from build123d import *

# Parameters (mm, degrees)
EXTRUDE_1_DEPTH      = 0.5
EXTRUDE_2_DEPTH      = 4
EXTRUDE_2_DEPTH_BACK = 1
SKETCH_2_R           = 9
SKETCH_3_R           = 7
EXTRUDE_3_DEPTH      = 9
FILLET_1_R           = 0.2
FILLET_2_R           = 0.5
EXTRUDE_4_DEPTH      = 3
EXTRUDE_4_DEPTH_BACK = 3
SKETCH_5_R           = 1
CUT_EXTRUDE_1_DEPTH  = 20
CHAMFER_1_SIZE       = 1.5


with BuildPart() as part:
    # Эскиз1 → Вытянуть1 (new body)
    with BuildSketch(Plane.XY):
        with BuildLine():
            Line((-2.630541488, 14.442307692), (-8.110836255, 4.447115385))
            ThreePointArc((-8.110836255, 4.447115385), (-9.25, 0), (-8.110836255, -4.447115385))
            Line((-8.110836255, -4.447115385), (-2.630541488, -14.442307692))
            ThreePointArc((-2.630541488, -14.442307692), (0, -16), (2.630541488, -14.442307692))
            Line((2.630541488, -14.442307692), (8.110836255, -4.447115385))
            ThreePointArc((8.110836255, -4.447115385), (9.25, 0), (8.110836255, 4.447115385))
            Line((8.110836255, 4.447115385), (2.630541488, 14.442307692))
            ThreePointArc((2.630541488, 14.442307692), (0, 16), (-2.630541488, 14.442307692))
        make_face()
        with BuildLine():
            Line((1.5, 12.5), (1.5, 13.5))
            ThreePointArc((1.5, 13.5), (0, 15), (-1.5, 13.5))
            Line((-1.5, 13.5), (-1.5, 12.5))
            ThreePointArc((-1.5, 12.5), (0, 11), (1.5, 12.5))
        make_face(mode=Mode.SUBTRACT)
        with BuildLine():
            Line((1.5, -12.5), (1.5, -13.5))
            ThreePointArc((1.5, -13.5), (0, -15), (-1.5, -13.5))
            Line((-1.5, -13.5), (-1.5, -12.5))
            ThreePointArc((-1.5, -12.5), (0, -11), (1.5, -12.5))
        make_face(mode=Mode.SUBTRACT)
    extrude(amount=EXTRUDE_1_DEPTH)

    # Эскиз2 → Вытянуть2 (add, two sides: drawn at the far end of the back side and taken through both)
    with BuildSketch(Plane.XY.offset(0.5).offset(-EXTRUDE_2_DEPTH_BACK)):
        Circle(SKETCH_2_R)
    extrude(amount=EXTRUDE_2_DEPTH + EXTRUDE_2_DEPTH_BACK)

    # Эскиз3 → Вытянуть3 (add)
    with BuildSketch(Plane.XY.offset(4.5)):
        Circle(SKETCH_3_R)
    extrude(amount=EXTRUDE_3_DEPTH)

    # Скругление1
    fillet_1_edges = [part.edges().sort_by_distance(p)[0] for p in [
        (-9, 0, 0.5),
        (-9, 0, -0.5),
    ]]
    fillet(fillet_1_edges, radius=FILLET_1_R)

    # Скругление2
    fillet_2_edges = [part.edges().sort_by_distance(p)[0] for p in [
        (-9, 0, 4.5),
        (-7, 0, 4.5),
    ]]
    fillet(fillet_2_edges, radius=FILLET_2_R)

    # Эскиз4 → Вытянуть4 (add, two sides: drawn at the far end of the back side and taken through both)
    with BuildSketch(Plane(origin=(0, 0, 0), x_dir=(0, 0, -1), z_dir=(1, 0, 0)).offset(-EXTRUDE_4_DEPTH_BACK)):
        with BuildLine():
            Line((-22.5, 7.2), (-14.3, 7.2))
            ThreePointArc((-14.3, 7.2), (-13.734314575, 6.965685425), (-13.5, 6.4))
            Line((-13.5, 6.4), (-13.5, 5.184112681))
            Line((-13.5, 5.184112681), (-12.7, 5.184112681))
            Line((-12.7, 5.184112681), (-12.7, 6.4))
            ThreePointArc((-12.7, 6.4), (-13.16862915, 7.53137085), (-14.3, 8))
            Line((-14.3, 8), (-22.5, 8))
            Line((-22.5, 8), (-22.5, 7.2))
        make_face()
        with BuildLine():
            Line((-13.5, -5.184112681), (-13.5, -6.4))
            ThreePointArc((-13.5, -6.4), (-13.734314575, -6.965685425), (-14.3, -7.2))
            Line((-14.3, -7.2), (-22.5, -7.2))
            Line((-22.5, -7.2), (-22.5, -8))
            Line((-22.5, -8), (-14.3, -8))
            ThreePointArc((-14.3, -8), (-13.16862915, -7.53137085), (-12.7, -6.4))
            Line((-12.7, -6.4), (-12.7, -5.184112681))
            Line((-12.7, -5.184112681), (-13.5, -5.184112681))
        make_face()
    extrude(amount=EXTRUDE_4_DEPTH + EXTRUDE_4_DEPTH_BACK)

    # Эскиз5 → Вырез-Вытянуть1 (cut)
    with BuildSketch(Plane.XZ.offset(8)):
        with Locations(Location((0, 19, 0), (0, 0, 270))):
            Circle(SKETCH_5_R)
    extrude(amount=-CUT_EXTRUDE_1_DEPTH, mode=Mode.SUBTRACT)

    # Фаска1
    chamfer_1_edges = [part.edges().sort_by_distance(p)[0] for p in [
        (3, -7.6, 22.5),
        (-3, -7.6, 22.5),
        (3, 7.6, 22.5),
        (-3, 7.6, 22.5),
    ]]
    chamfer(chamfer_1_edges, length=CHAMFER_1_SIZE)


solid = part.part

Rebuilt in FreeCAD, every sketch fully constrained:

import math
import FreeCAD as App
import Part
import Sketcher

V = App.Vector


def edges_at(feature, points):
    """Names of the edges that pass closest to the given points."""
    edges = feature.Shape.Edges
    near = lambda p: min(range(len(edges)), key=lambda i: edges[i].distToShape(Part.Vertex(*p))[0])
    return sorted({f"Edge{near(p) + 1}" for p in points})

doc = App.newDocument("Part")
params = doc.addObject("Spreadsheet::Sheet", "Params")
for row, (alias, value) in enumerate([
    ("sketch1_radius", "3 mm"),
    ("sketch1_radius2", "1.5 mm"),
    ("sketch1_height", "1 mm"),
    ("sketch1_radius3", "9.25 mm"),
    ("pad1_length", "0.5 mm"),
    ("sketch2_diameter", "18 mm"),
    ("pad2_length", "4 mm"),
    ("pad2_length2", "1 mm"),
    ("sketch3_diameter", "14 mm"),
    ("pad3_length", "9 mm"),
    ("fillet_radius", "0.2 mm"),
    ("fillet2_radius", "0.5 mm"),
    ("sketch4_radius", "0.8 mm"),
    ("sketch4_radius2", "1.6 mm"),
    ("sketch4_height", "8.2 mm"),
    ("pad4_length", "3 mm"),
    ("pad4_length2", "3 mm"),
    ("sketch5_diameter", "2 mm"),
    ("pocket1_length", "20 mm"),
    ("chamfer_size", "1.5 mm"),
], start=1):
    params.set(f"A{row}", alias)
    params.set(f"B{row}", "=" + value)
    params.setAlias(f"B{row}", alias)

body = doc.addObject("PartDesign::Body", "Body")

# Sketch on XY plane
sketch1 = doc.addObject("Sketcher::SketchObject", "Sketch")
body.addObject(sketch1)
sketch1.AttachmentSupport = (doc.XY_Plane, [""])
sketch1.MapMode = "FlatFace"
sketch1.addGeometry(Part.LineSegment(V(-2.6, 14.4, 0), V(-8.1, 4.4, 0)), False)
sketch1.addGeometry(Part.ArcOfCircle(Part.Circle(V(0, 0, 0), V(0, 0, 1), 9.3), math.radians(151), math.radians(209)), False)
sketch1.addGeometry(Part.LineSegment(V(-8.1, -4.4, 0), V(-2.6, -14.4, 0)), False)
sketch1.addGeometry(Part.ArcOfCircle(Part.Circle(V(0, -13, 0), V(0, 0, 1), 3), math.radians(-151), math.radians(-29)), False)
sketch1.addGeometry(Part.LineSegment(V(2.6, -14.4, 0), V(8.1, -4.4, 0)), False)
sketch1.addGeometry(Part.ArcOfCircle(Part.Circle(V(0, 0, 0), V(0, 0, 1), 9.3), math.radians(-29), math.radians(29)), False)
sketch1.addGeometry(Part.LineSegment(V(8.1, 4.4, 0), V(2.6, 14.4, 0)), False)
sketch1.addGeometry(Part.ArcOfCircle(Part.Circle(V(0, 13, 0), V(0, 0, 1), 3), math.radians(29), math.radians(151)), False)
sketch1.addGeometry(Part.ArcOfCircle(Part.Circle(V(0, -12.5, 0), V(0, 0, 1), 1.5), math.radians(0), math.radians(180)), False)
sketch1.addGeometry(Part.LineSegment(V(1.5, -12.5, 0), V(1.5, -13.5, 0)), False)
sketch1.addGeometry(Part.ArcOfCircle(Part.Circle(V(0, -13.5, 0), V(0, 0, 1), 1.5), math.radians(180), math.radians(360)), False)
sketch1.addGeometry(Part.LineSegment(V(-1.5, -13.5, 0), V(-1.5, -12.5, 0)), False)
sketch1.addGeometry(Part.LineSegment(V(1.5, 13.5, 0), V(1.5, 12.5, 0)), False)
sketch1.addGeometry(Part.ArcOfCircle(Part.Circle(V(0, 12.5, 0), V(0, 0, 1), 1.5), math.radians(180), math.radians(360)), False)
sketch1.addGeometry(Part.LineSegment(V(-1.5, 12.5, 0), V(-1.5, 13.5, 0)), False)
sketch1.addGeometry(Part.ArcOfCircle(Part.Circle(V(0, 13.5, 0), V(0, 0, 1), 1.5), math.radians(0), math.radians(180)), False)
sketch1.addConstraint(Sketcher.Constraint("Tangent", 0, 2, 1, 1))
sketch1.addConstraint(Sketcher.Constraint("Tangent", 1, 2, 2, 1))
sketch1.addConstraint(Sketcher.Constraint("Tangent", 2, 2, 3, 1))
sketch1.addConstraint(Sketcher.Constraint("Tangent", 3, 2, 4, 1))
sketch1.addConstraint(Sketcher.Constraint("Tangent", 4, 2, 5, 1))
sketch1.addConstraint(Sketcher.Constraint("Tangent", 5, 2, 6, 1))
sketch1.addConstraint(Sketcher.Constraint("Tangent", 6, 2, 7, 1))
sketch1.addConstraint(Sketcher.Constraint("Tangent", 7, 2, 0, 1))
sketch1.addConstraint(Sketcher.Constraint("Tangent", 8, 1, 9, 1))
sketch1.addConstraint(Sketcher.Constraint("Tangent", 9, 2, 10, 2))
sketch1.addConstraint(Sketcher.Constraint("Tangent", 10, 1, 11, 1))
sketch1.addConstraint(Sketcher.Constraint("Tangent", 11, 2, 8, 2))
sketch1.addConstraint(Sketcher.Constraint("Tangent", 12, 2, 13, 2))
sketch1.addConstraint(Sketcher.Constraint("Tangent", 13, 1, 14, 1))
sketch1.addConstraint(Sketcher.Constraint("Tangent", 14, 2, 15, 2))
sketch1.addConstraint(Sketcher.Constraint("Tangent", 15, 1, 12, 1))
sketch1.addConstraint(Sketcher.Constraint("Vertical", 9))
sketch1.addConstraint(Sketcher.Constraint("Vertical", 11))
sketch1.addConstraint(Sketcher.Constraint("Vertical", 12))
sketch1.addConstraint(Sketcher.Constraint("Vertical", 14))
sketch1.addConstraint(Sketcher.Constraint("Coincident", 1, 3, -1, 1))
sketch1.addConstraint(Sketcher.Constraint("Coincident", 5, 3, -1, 1))
sketch1.addConstraint(Sketcher.Constraint("Equal", 1, 5))
sketch1.addConstraint(Sketcher.Constraint("Equal", 3, 7))
sketch1.addConstraint(Sketcher.Constraint("Equal", 10, 13))
sketch1.addConstraint(Sketcher.Constraint("Symmetric", 3, 3, 7, 3, -1, 1))
sketch1.addConstraint(Sketcher.Constraint("Symmetric", 8, 3, 13, 3, -1, 1))
sketch1.addConstraint(Sketcher.Constraint("Symmetric", 10, 3, 15, 3, -1))
sketch1.addConstraint(Sketcher.Constraint("PointOnObject", 3, 3, -2))
sketch1.addConstraint(Sketcher.Constraint("Radius", 3, 3.0))
sketch1.addConstraint(Sketcher.Constraint("Radius", 8, 1.5))
sketch1.addConstraint(Sketcher.Constraint("DistanceY", 9, 2, 9, 1, 1.0))
sketch1.addConstraint(Sketcher.Constraint("Radius", 1, 9.25))
sketch1.addConstraint(Sketcher.Constraint("DistanceY", 3, 3, -1, 1, 13.0))
sketch1.addConstraint(Sketcher.Constraint("DistanceY", 8, 3, 13, 3, 25.0))
sketch1.setExpression("Constraints[29]", "Params.sketch1_radius")
sketch1.setExpression("Constraints[30]", "Params.sketch1_radius2")
sketch1.setExpression("Constraints[31]", "Params.sketch1_height")
sketch1.setExpression("Constraints[32]", "Params.sketch1_radius3")
pad1 = doc.addObject("PartDesign::Pad", "Pad")
body.addObject(pad1)
pad1.Profile = sketch1
pad1.setExpression("Length", "Params.pad1_length")

# Sketch on XY plane
sketch2 = doc.addObject("Sketcher::SketchObject", "Sketch001")
body.addObject(sketch2)
sketch2.AttachmentSupport = (doc.XY_Plane, [""])
sketch2.MapMode = "FlatFace"
sketch2.AttachmentOffset = App.Placement(V(0, 0, 0.5), App.Rotation())
sketch2.addGeometry(Part.Circle(V(0, 0, 0), V(0, 0, 1), 9), False)
sketch2.addConstraint(Sketcher.Constraint("Coincident", 0, 3, -1, 1))
sketch2.addConstraint(Sketcher.Constraint("Diameter", 0, 18.0))
sketch2.setExpression("Constraints[1]", "Params.sketch2_diameter")
pad2 = doc.addObject("PartDesign::Pad", "Pad001")
body.addObject(pad2)
pad2.Profile = sketch2
pad2.Type = "TwoLengths"
pad2.setExpression("Length", "Params.pad2_length")
pad2.setExpression("Length2", "Params.pad2_length2")

# Sketch on XY plane
sketch3 = doc.addObject("Sketcher::SketchObject", "Sketch002")
body.addObject(sketch3)
sketch3.AttachmentSupport = (doc.XY_Plane, [""])
sketch3.MapMode = "FlatFace"
sketch3.AttachmentOffset = App.Placement(V(0, 0, 4.5), App.Rotation())
sketch3.addGeometry(Part.Circle(V(0, 0, 0), V(0, 0, 1), 7), False)
sketch3.addConstraint(Sketcher.Constraint("Coincident", 0, 3, -1, 1))
sketch3.addConstraint(Sketcher.Constraint("Diameter", 0, 14.0))
sketch3.setExpression("Constraints[1]", "Params.sketch3_diameter")
pad3 = doc.addObject("PartDesign::Pad", "Pad002")
body.addObject(pad3)
pad3.Profile = sketch3
pad3.setExpression("Length", "Params.pad3_length")
doc.recompute()

fillet = doc.addObject("PartDesign::Fillet", "Fillet")
body.addObject(fillet)
fillet.Base = (pad3, edges_at(pad3, [(-9, 0, 0.5), (-9, 0, -0.5)]))
fillet.setExpression("Radius", "Params.fillet_radius")
doc.recompute()

fillet2 = doc.addObject("PartDesign::Fillet", "Fillet001")
body.addObject(fillet2)
fillet2.Base = (fillet, edges_at(fillet, [(-9, 0, 4.5), (-7, 0, 4.5)]))
fillet2.setExpression("Radius", "Params.fillet2_radius")

# Sketch on YZ plane
sketch4 = doc.addObject("Sketcher::SketchObject", "Sketch003")
body.addObject(sketch4)
sketch4.AttachmentSupport = (doc.YZ_Plane, [""])
sketch4.MapMode = "FlatFace"
sketch4.addGeometry(Part.LineSegment(V(7.2, 22.5, 0), V(7.2, 14.3, 0)), False)
sketch4.addGeometry(Part.ArcOfCircle(Part.Circle(V(6.4, 14.3, 0), V(0, 0, 1), 0.8), math.radians(-90), math.radians(0)), False)
sketch4.addGeometry(Part.LineSegment(V(6.4, 13.5, 0), V(5.2, 13.5, 0)), False)
sketch4.addGeometry(Part.LineSegment(V(5.2, 13.5, 0), V(5.2, 12.7, 0)), False)
sketch4.addGeometry(Part.LineSegment(V(5.2, 12.7, 0), V(6.4, 12.7, 0)), False)
sketch4.addGeometry(Part.ArcOfCircle(Part.Circle(V(6.4, 14.3, 0), V(0, 0, 1), 1.6), math.radians(-90), math.radians(0)), False)
sketch4.addGeometry(Part.LineSegment(V(8, 14.3, 0), V(8, 22.5, 0)), False)
sketch4.addGeometry(Part.LineSegment(V(8, 22.5, 0), V(7.2, 22.5, 0)), False)
sketch4.addGeometry(Part.LineSegment(V(-5.2, 13.5, 0), V(-6.4, 13.5, 0)), False)
sketch4.addGeometry(Part.ArcOfCircle(Part.Circle(V(-6.4, 14.3, 0), V(0, 0, 1), 0.8), math.radians(180), math.radians(270)), False)
sketch4.addGeometry(Part.LineSegment(V(-7.2, 14.3, 0), V(-7.2, 22.5, 0)), False)
sketch4.addGeometry(Part.LineSegment(V(-7.2, 22.5, 0), V(-8, 22.5, 0)), False)
sketch4.addGeometry(Part.LineSegment(V(-8, 22.5, 0), V(-8, 14.3, 0)), False)
sketch4.addGeometry(Part.ArcOfCircle(Part.Circle(V(-6.4, 14.3, 0), V(0, 0, 1), 1.6), math.radians(180), math.radians(270)), False)
sketch4.addGeometry(Part.LineSegment(V(-6.4, 12.7, 0), V(-5.2, 12.7, 0)), False)
sketch4.addGeometry(Part.LineSegment(V(-5.2, 12.7, 0), V(-5.2, 13.5, 0)), False)
sketch4.addConstraint(Sketcher.Constraint("Tangent", 0, 2, 1, 2))
sketch4.addConstraint(Sketcher.Constraint("Tangent", 1, 1, 2, 1))
sketch4.addConstraint(Sketcher.Constraint("Coincident", 2, 2, 3, 1))
sketch4.addConstraint(Sketcher.Constraint("Coincident", 3, 2, 4, 1))
sketch4.addConstraint(Sketcher.Constraint("Tangent", 4, 2, 5, 1))
sketch4.addConstraint(Sketcher.Constraint("Tangent", 5, 2, 6, 1))
sketch4.addConstraint(Sketcher.Constraint("Coincident", 6, 2, 7, 1))
sketch4.addConstraint(Sketcher.Constraint("Coincident", 7, 2, 0, 1))
sketch4.addConstraint(Sketcher.Constraint("Tangent", 8, 2, 9, 2))
sketch4.addConstraint(Sketcher.Constraint("Tangent", 9, 1, 10, 1))
sketch4.addConstraint(Sketcher.Constraint("Coincident", 10, 2, 11, 1))
sketch4.addConstraint(Sketcher.Constraint("Coincident", 11, 2, 12, 1))
sketch4.addConstraint(Sketcher.Constraint("Tangent", 12, 2, 13, 1))
sketch4.addConstraint(Sketcher.Constraint("Tangent", 13, 2, 14, 1))
sketch4.addConstraint(Sketcher.Constraint("Coincident", 14, 2, 15, 1))
sketch4.addConstraint(Sketcher.Constraint("Coincident", 15, 2, 8, 1))
sketch4.addConstraint(Sketcher.Constraint("Vertical", 0))
sketch4.addConstraint(Sketcher.Constraint("Horizontal", 2))
sketch4.addConstraint(Sketcher.Constraint("Vertical", 3))
sketch4.addConstraint(Sketcher.Constraint("Horizontal", 4))
sketch4.addConstraint(Sketcher.Constraint("Vertical", 6))
sketch4.addConstraint(Sketcher.Constraint("Horizontal", 7))
sketch4.addConstraint(Sketcher.Constraint("Horizontal", 8))
sketch4.addConstraint(Sketcher.Constraint("Vertical", 10))
sketch4.addConstraint(Sketcher.Constraint("Horizontal", 11))
sketch4.addConstraint(Sketcher.Constraint("Vertical", 12))
sketch4.addConstraint(Sketcher.Constraint("Horizontal", 14))
sketch4.addConstraint(Sketcher.Constraint("Vertical", 15))
sketch4.addConstraint(Sketcher.Constraint("Coincident", 5, 3, 1, 3))
sketch4.addConstraint(Sketcher.Constraint("Coincident", 13, 3, 9, 3))
sketch4.addConstraint(Sketcher.Constraint("Equal", 1, 9))
sketch4.addConstraint(Sketcher.Constraint("Equal", 5, 13))
sketch4.addConstraint(Sketcher.Constraint("Symmetric", 1, 3, 9, 3, -2))
sketch4.addConstraint(Sketcher.Constraint("Horizontal", 7, 2, 10, 2))
sketch4.addConstraint(Sketcher.Constraint("Equal", 4, 8))
sketch4.addConstraint(Sketcher.Constraint("Radius", 1, 0.8))
sketch4.addConstraint(Sketcher.Constraint("Radius", 5, 1.6))
sketch4.addConstraint(Sketcher.Constraint("DistanceY", 0, 2, 0, 1, 8.2))
sketch4.addConstraint(Sketcher.Constraint("DistanceX", -1, 1, 5, 2, 8.0))
sketch4.addConstraint(Sketcher.Constraint("DistanceY", -1, 1, 1, 3, 14.3))
sketch4.addConstraint(Sketcher.Constraint("DistanceX", 2, 2, 2, 1, 1.215887))
sketch4.setExpression("Constraints[35]", "Params.sketch4_radius")
sketch4.setExpression("Constraints[36]", "Params.sketch4_radius2")
sketch4.setExpression("Constraints[37]", "Params.sketch4_height")
pad4 = doc.addObject("PartDesign::Pad", "Pad003")
body.addObject(pad4)
pad4.Profile = sketch4
pad4.Type = "TwoLengths"
pad4.setExpression("Length", "Params.pad4_length")
pad4.setExpression("Length2", "Params.pad4_length2")

# Sketch on XZ plane
sketch5 = doc.addObject("Sketcher::SketchObject", "Sketch004")
body.addObject(sketch5)
sketch5.AttachmentSupport = (doc.XZ_Plane, [""])
sketch5.MapMode = "FlatFace"
sketch5.AttachmentOffset = App.Placement(V(0, 0, 8), App.Rotation())
sketch5.addGeometry(Part.Circle(V(0, 19, 0), V(0, 0, 1), 1), False)
sketch5.addConstraint(Sketcher.Constraint("PointOnObject", 0, 3, -2))
sketch5.addConstraint(Sketcher.Constraint("Diameter", 0, 2.0))
sketch5.addConstraint(Sketcher.Constraint("DistanceY", -1, 1, 0, 3, 19.0))
sketch5.setExpression("Constraints[1]", "Params.sketch5_diameter")
pocket1 = doc.addObject("PartDesign::Pocket", "Pocket")
body.addObject(pocket1)
pocket1.Profile = sketch5
pocket1.setExpression("Length", "Params.pocket1_length")
doc.recompute()

chamfer = doc.addObject("PartDesign::Chamfer", "Chamfer")
body.addObject(chamfer)
chamfer.Base = (pocket1, edges_at(pocket1, [
    (3, -7.6, 22.5),
    (-3, -7.6, 22.5),
    (3, 7.6, 22.5),
    (-3, 7.6, 22.5),
]))
chamfer.setExpression("Size", "Params.chamfer_size")

doc.recompute()
